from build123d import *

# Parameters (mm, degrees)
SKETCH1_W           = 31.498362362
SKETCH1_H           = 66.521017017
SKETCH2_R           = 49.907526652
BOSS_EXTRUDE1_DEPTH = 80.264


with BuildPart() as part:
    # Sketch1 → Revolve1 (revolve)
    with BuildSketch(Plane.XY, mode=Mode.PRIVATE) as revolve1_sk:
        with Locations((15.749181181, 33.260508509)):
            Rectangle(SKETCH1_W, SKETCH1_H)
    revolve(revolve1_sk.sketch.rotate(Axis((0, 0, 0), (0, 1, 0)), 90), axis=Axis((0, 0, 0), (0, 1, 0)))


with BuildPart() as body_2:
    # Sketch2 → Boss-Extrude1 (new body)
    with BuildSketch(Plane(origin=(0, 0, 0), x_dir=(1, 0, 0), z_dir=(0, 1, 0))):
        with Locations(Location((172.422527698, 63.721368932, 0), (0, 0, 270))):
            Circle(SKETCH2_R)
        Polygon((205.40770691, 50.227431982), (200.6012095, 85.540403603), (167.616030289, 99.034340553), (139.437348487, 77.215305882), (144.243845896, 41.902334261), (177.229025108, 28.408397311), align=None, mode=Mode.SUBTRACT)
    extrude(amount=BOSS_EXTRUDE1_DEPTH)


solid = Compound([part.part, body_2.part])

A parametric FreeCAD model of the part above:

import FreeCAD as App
import Part
import Sketcher
Q = App.Units.Quantity


def add_polygon(sketch, points):
    """Adds a closed chain of lines whose ends are joined by coincident constraints."""
    first, n = sketch.GeometryCount, len(points)
    for a, b in zip(points, points[1:] + points[:1]):
        sketch.addGeometry(Part.LineSegment(App.Vector(*a, 0), App.Vector(*b, 0)), False)
    for i in range(n):
        sketch.addConstraint(Sketcher.Constraint("Coincident", first + i, 2, first + (i + 1) % n, 1))

doc = App.newDocument("Part")
body = doc.addObject("PartDesign::Body", "Body")

sketch1 = body.newObject("Sketcher::SketchObject", "Sketch")
sketch1.AttachmentSupport = (doc.getObject("XY_Plane"), [""])
sketch1.MapMode = "FlatFace"
add_polygon(sketch1, [(0, 66.521017), (0, 0), (31.498362, 0), (31.498362, 66.521017)])
sketch1.addConstraint([
    Sketcher.Constraint("Vertical", 0),
    Sketcher.Constraint("Horizontal", 1),
    Sketcher.Constraint("Vertical", 2),
    Sketcher.Constraint("Horizontal", 3),
    Sketcher.Constraint("Coincident", 0, 2, -1, 1),
    Sketcher.Constraint("DistanceX", 1, 1, 1, 2, Q("31.498362 mm")),
    Sketcher.Constraint("DistanceY", 0, 2, 0, 1, Q("66.521017 mm")),
])
revolution = body.newObject("PartDesign::Revolution", "Revolution")
revolution.Profile = sketch1
revolution.ReferenceAxis = (sketch1, ["V_Axis"])
revolution.Angle = 360
body2 = doc.addObject("PartDesign::Body", "Body001")

sketch2 = body2.newObject("Sketcher::SketchObject", "Sketch001")
sketch2.AttachmentSupport = (doc.getObject("XZ_Plane001"), [""])
sketch2.MapMode = "FlatFace"
sketch2.addGeometry(Part.Circle(App.Vector(172.422528, -63.721369, 0), App.Vector(0, 0, 1), 49.907527), False)
add_polygon(sketch2, [(200.60121, -85.540404), (205.407707, -50.227432), (177.229025, -28.408397), (144.243846, -41.902334), (139.437348, -77.215306), (167.61603, -99.034341)])
sketch2.addConstraint([
    Sketcher.Constraint("Parallel", 1, 4),
    Sketcher.Constraint("Parallel", 2, 5),
    Sketcher.Constraint("Parallel", 3, 6),
    Sketcher.Constraint("Equal", 1, 2),
    Sketcher.Constraint("Equal", 2, 3),
    Sketcher.Constraint("Equal", 3, 4),
    Sketcher.Constraint("Diameter", 0, Q("99.815053 mm")),
    Sketcher.Constraint("Distance", 1, Q("35.63858 mm")),
    Sketcher.Constraint("DistanceY", 0, 3, -1, 1, Q("63.721369 mm")),
    Sketcher.Constraint("DistanceY", 1, 2, -1, 1, Q("50.227432 mm")),
    Sketcher.Constraint("DistanceX", -1, 1, 4, 2, Q("139.437348 mm")),
    Sketcher.Constraint("DistanceX", -1, 1, 5, 2, Q("167.61603 mm")),
    Sketcher.Constraint("DistanceY", 5, 2, -1, 1, Q("99.034341 mm")),
    Sketcher.Constraint("DistanceX", -1, 1, 6, 2, Q("200.60121 mm")),
    Sketcher.Constraint("DistanceX", 0, 3, 1, 2, Q("32.985179 mm")),
])
pad1 = body2.newObject("PartDesign::Pad", "Pad")
pad1.Profile = sketch2
pad1.Length = Q("3.16 in")
pad1.Reversed = True

doc.recompute()
